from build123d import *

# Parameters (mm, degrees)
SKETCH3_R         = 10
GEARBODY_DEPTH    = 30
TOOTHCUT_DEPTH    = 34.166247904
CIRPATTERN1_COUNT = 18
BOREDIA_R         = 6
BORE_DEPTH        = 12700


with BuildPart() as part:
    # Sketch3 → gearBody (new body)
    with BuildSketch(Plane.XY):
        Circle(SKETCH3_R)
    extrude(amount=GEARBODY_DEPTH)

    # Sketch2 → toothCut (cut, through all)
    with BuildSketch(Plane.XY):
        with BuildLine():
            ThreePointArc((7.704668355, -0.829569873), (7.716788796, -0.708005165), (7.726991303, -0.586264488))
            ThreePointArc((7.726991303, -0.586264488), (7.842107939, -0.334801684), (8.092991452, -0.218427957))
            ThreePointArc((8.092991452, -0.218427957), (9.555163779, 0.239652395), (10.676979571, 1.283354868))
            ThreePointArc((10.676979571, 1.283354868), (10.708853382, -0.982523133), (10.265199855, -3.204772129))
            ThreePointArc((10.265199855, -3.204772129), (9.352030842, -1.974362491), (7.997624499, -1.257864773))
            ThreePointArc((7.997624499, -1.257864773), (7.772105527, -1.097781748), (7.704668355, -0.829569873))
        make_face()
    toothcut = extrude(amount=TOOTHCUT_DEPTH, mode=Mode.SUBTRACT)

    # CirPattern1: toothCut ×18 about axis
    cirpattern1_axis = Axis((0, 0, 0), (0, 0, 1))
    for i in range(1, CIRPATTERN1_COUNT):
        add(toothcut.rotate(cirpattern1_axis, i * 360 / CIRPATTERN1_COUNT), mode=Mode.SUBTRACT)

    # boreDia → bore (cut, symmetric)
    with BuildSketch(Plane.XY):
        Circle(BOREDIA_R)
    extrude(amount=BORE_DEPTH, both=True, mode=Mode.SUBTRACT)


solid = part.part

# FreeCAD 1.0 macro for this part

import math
import FreeCAD as App
import Part
import Sketcher
Q = App.Units.Quantity

doc = App.newDocument("Part")
body = doc.addObject("PartDesign::Body", "Body")

sketch1 = body.newObject("Sketcher::SketchObject", "Sketch")
sketch1.AttachmentSupport = (doc.getObject("XY_Plane"), [""])
sketch1.MapMode = "FlatFace"
sketch1.addGeometry(Part.Circle(App.Vector(0, 0, 0), App.Vector(0, 0, 1), 10), False)
sketch1.addConstraint(Sketcher.Constraint("Coincident", 0, 3, -1, 1))
sketch1.addConstraint(Sketcher.Constraint("Diameter", 0, Q("20 mm")))
pad1 = body.newObject("PartDesign::Pad", "Pad")
pad1.Profile = sketch1
pad1.Length = 30

sketch2 = body.newObject("Sketcher::SketchObject", "Sketch001")
sketch2.AttachmentSupport = (doc.getObject("XY_Plane"), [""])
sketch2.MapMode = "FlatFace"
sketch2.addGeometry(Part.ArcOfCircle(Part.Circle(App.Vector(-0.000003, 0, 0), App.Vector(0, 0, 1), 7.749203), math.radians(-6.145423), math.radians(-4.338849)), False)
sketch2.addGeometry(Part.ArcOfCircle(Part.Circle(App.Vector(8.101723, -0.872321, 0), App.Vector(0, 0, 1), 0.39935), math.radians(173.854577), math.radians(254.890122)), False)
sketch2.addGeometry(Part.ArcOfCircle(Part.Circle(App.Vector(7.094097, -4.604192, 0), App.Vector(0, 0, 1), 3.466161), math.radians(23.812057), math.radians(74.890122)), False)
sketch2.addGeometry(Part.ArcOfCircle(Part.Circle(App.Vector(0, 0, 0), App.Vector(0, 0, 1), 10.753832), math.radians(-17.338245), math.radians(6.853974)), False)
sketch2.addGeometry(Part.ArcOfCircle(Part.Circle(App.Vector(7.813465, 3.236443, 0), App.Vector(0, 0, 1), 3.466161), math.radians(-85.374393), math.radians(-34.296328)), False)
sketch2.addGeometry(Part.ArcOfCircle(Part.Circle(App.Vector(8.125197, -0.616477, 0), App.Vector(0, 0, 1), 0.39935), math.radians(94.625607), math.radians(175.661151)), False)
sketch2.addConstraint(Sketcher.Constraint("Tangent", 0, 1, 1, 1))
sketch2.addConstraint(Sketcher.Constraint("Tangent", 1, 2, 2, 2))
sketch2.addConstraint(Sketcher.Constraint("Coincident", 2, 1, 3, 1))
sketch2.addConstraint(Sketcher.Constraint("Coincident", 3, 2, 4, 2))
sketch2.addConstraint(Sketcher.Constraint("Tangent", 4, 1, 5, 1))
sketch2.addConstraint(Sketcher.Constraint("Tangent", 5, 2, 0, 2))
sketch2.addConstraint(Sketcher.Constraint("Coincident", 0, 3, -1, 1))
sketch2.addConstraint(Sketcher.Constraint("Coincident", 3, 3, -1, 1))
sketch2.addConstraint(Sketcher.Constraint("Equal", 2, 4))
sketch2.addConstraint(Sketcher.Constraint("Equal", 1, 5))
sketch2.addConstraint(Sketcher.Constraint("Radius", 1, Q("0.39935 mm")))
sketch2.addConstraint(Sketcher.Constraint("Radius", 2, Q("3.466161 mm")))
sketch2.addConstraint(Sketcher.Constraint("Radius", 3, Q("10.753832 mm")))
sketch2.addConstraint(Sketcher.Constraint("Radius", 0, Q("7.749203 mm")))
sketch2.addConstraint(Sketcher.Constraint("DistanceX", 5, 2, 4, 1, Q("0.366 mm")))
sketch2.addConstraint(Sketcher.Constraint("DistanceX", -1, 1, 2, 1, Q("10.2652 mm")))
sketch2.addConstraint(Sketcher.Constraint("DistanceX", 0, 3, 2, 3, Q("7.0941 mm")))
sketch2.addConstraint(Sketcher.Constraint("DistanceX", 2, 3, 5, 3, Q("1.0311 mm")))
pocket1 = body.newObject("PartDesign::Pocket", "Pocket")
pocket1.Profile = sketch2
pocket1.Type = "ThroughAll"
pocket1.Reversed = True
doc.recompute()

polarpattern = body.newObject("PartDesign::PolarPattern", "PolarPattern")
polarpattern.Originals = [pocket1]
polarpattern.Axis = (doc.getObject("Z_Axis"), [""])
polarpattern.Angle = 360
polarpattern.Occurrences = 18
body.Tip = polarpattern

sketch3 = body.newObject("Sketcher::SketchObject", "Sketch002")
sketch3.AttachmentSupport = (doc.getObject("XY_Plane"), [""])
sketch3.MapMode = "FlatFace"
sketch3.addGeometry(Part.Circle(App.Vector(0, 0, 0), App.Vector(0, 0, 1), 6), False)
sketch3.addConstraint(Sketcher.Constraint("Coincident", 0, 3, -1, 1))
sketch3.addConstraint(Sketcher.Constraint("Diameter", 0, Q("12 mm")))
pocket2 = body.newObject("PartDesign::Pocket", "Pocket001")
pocket2.Profile = sketch3
pocket2.Length = 25400
pocket2.Midplane = True

doc.recompute()
